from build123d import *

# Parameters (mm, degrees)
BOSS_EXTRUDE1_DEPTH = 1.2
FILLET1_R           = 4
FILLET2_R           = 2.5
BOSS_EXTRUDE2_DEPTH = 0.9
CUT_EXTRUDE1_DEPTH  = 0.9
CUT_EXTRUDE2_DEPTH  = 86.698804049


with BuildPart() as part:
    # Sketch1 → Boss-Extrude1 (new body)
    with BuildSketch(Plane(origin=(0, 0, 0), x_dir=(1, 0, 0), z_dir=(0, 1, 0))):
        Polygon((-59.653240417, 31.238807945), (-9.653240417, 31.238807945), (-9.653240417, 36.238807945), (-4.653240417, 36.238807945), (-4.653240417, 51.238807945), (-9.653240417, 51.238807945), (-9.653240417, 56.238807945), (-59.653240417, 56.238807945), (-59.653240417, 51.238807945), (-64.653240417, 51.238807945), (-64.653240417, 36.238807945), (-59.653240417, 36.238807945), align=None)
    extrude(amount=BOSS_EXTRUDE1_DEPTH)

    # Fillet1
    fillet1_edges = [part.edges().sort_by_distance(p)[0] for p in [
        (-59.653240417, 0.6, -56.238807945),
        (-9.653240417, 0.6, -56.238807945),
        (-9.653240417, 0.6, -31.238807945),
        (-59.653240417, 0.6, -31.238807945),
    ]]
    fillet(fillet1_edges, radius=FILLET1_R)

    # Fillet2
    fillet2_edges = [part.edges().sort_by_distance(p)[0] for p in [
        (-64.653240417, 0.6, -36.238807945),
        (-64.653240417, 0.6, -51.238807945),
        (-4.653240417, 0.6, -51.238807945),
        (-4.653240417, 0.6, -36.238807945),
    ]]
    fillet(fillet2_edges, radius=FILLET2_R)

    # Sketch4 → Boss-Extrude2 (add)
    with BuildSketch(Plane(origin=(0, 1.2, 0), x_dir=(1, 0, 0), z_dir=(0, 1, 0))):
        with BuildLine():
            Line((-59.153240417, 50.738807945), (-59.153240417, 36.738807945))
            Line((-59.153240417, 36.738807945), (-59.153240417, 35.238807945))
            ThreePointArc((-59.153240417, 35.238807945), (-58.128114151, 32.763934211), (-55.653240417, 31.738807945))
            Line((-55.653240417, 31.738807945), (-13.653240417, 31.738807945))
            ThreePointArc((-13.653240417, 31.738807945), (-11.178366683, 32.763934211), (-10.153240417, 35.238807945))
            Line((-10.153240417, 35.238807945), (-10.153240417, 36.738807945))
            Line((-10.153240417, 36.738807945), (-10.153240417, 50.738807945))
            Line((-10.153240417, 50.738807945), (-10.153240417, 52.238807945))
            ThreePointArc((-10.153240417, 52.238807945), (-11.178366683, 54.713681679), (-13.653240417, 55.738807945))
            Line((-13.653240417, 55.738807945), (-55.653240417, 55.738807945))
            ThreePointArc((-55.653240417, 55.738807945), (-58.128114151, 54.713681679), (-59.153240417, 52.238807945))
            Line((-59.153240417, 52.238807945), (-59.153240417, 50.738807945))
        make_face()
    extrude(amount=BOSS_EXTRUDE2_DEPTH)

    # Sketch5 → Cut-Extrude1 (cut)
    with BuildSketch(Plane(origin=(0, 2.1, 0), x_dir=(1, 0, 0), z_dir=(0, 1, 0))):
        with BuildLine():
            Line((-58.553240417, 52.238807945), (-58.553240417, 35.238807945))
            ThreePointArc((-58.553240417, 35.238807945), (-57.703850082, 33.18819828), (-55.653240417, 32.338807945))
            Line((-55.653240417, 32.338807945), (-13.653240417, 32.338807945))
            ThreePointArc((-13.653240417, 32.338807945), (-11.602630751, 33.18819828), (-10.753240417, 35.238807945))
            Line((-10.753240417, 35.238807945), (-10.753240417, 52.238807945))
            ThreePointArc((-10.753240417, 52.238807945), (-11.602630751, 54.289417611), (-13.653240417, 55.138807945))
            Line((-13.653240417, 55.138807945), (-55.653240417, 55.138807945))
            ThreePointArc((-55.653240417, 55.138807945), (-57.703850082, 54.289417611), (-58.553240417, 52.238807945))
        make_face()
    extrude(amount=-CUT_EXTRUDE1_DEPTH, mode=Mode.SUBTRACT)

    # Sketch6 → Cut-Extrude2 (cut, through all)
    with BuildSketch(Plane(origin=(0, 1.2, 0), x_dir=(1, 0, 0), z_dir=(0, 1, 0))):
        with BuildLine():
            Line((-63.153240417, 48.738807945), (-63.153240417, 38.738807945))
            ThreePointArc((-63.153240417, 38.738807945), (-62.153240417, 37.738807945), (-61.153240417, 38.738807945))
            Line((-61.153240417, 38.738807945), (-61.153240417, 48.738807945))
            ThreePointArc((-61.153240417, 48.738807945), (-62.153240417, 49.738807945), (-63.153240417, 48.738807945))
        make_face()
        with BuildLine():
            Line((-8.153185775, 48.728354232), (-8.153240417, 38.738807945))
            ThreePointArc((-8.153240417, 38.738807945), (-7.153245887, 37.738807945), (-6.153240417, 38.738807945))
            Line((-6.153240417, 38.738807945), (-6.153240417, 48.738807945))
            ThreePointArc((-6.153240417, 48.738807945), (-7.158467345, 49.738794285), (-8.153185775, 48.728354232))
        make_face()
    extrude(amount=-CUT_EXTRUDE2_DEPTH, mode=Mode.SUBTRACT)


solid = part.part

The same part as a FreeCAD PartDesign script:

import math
import FreeCAD as App
import Part
import Sketcher

V = App.Vector


def edges_at(feature, points):
    """Names of the edges that pass closest to the given points."""
    edges = feature.Shape.Edges
    near = lambda p: min(range(len(edges)), key=lambda i: edges[i].distToShape(Part.Vertex(*p))[0])
    return sorted({f"Edge{near(p) + 1}" for p in points})


def add_polygon(sketch, points):
    """Adds a closed chain of lines whose ends are joined by coincident constraints."""
    first, n = sketch.GeometryCount, len(points)
    for a, b in zip(points, points[1:] + points[:1]):
        sketch.addGeometry(Part.LineSegment(App.Vector(*a, 0), App.Vector(*b, 0)), False)
    for i in range(n):
        sketch.addConstraint(Sketcher.Constraint("Coincident", first + i, 2, first + (i + 1) % n, 1))

doc = App.newDocument("Part")
body = doc.addObject("PartDesign::Body", "Body")

# Sketch on XZ plane
sketch1 = doc.addObject("Sketcher::SketchObject", "Sketch")
body.addObject(sketch1)
sketch1.AttachmentSupport = (doc.XZ_Plane, [""])
sketch1.MapMode = "FlatFace"
add_polygon(sketch1, [(-59.7, -31.2), (-9.7, -31.2), (-9.7, -36.2), (-4.7, -36.2), (-4.7, -51.2), (-9.7, -51.2), (-9.7, -56.2), (-59.7, -56.2), (-59.7, -51.2), (-64.7, -51.2), (-64.7, -36.2), (-59.7, -36.2)])  # lines 0-11
sketch1.addConstraint(Sketcher.Constraint("Horizontal", 0))
sketch1.addConstraint(Sketcher.Constraint("Vertical", 1))
sketch1.addConstraint(Sketcher.Constraint("Horizontal", 2))
sketch1.addConstraint(Sketcher.Constraint("Vertical", 3))
sketch1.addConstraint(Sketcher.Constraint("Horizontal", 4))
sketch1.addConstraint(Sketcher.Constraint("Vertical", 5))
sketch1.addConstraint(Sketcher.Constraint("Horizontal", 6))
sketch1.addConstraint(Sketcher.Constraint("Vertical", 7))
sketch1.addConstraint(Sketcher.Constraint("Horizontal", 8))
sketch1.addConstraint(Sketcher.Constraint("Vertical", 9))
sketch1.addConstraint(Sketcher.Constraint("Horizontal", 10))
sketch1.addConstraint(Sketcher.Constraint("Vertical", 11))
sketch1.addConstraint(Sketcher.Constraint("Horizontal", 4, 2, 7, 2))
sketch1.addConstraint(Sketcher.Constraint("Horizontal", 2, 2, 9, 2))
sketch1.addConstraint(Sketcher.Constraint("Vertical", 1, 2, 4, 2))
sketch1.addConstraint(Sketcher.Constraint("Vertical", 7, 2, 10, 2))
sketch1.addConstraint(Sketcher.Constraint("Equal", 4, 8))
sketch1.addConstraint(Sketcher.Constraint("Equal", 10, 1))
sketch1.addConstraint(Sketcher.Constraint("Equal", 1, 5))
sketch1.addConstraint(Sketcher.Constraint("DistanceX", 0, 1, 0, 2, 50.0))
sketch1.addConstraint(Sketcher.Constraint("DistanceX", 2, 1, 2, 2, 5.0))
sketch1.addConstraint(Sketcher.Constraint("DistanceY", 3, 2, 3, 1, 15.0))
sketch1.addConstraint(Sketcher.Constraint("DistanceX", 0, 2, -1, 1, 9.65324))
sketch1.addConstraint(Sketcher.Constraint("DistanceY", 0, 2, -1, 1, 31.238808))
pad1 = doc.addObject("PartDesign::Pad", "Pad")
body.addObject(pad1)
pad1.Profile = sketch1
pad1.Length = 1.2
pad1.Reversed = True
doc.recompute()

fillet = doc.addObject("PartDesign::Fillet", "Fillet")
body.addObject(fillet)
fillet.Base = (pad1, edges_at(pad1, [
    (-59.653, 0.6, -56.239),
    (-9.653, 0.6, -56.239),
    (-9.653, 0.6, -31.239),
    (-59.653, 0.6, -31.239),
]))
fillet.Radius = 4
doc.recompute()

fillet2 = doc.addObject("PartDesign::Fillet", "Fillet001")
body.addObject(fillet2)
fillet2.Base = (fillet, edges_at(fillet, [
    (-64.653, 0.6, -36.239),
    (-64.653, 0.6, -51.239),
    (-4.653, 0.6, -51.239),
    (-4.653, 0.6, -36.239),
]))
fillet2.Radius = 2.5

# Sketch on XZ plane
sketch2 = doc.addObject("Sketcher::SketchObject", "Sketch001")
body.addObject(sketch2)
sketch2.AttachmentSupport = (doc.XZ_Plane, [""])
sketch2.MapMode = "FlatFace"
sketch2.AttachmentOffset = App.Placement(V(0, 0, -1.2), App.Rotation())
sketch2.addGeometry(Part.ArcOfCircle(Part.Circle(V(-55.7, -35.2, 0), V(0, 0, 1), 3.5), math.radians(90), math.radians(180)), False)
sketch2.addGeometry(Part.LineSegment(V(-55.7, -31.7, 0), V(-13.7, -31.7, 0)), False)
sketch2.addGeometry(Part.ArcOfCircle(Part.Circle(V(-13.7, -35.2, 0), V(0, 0, 1), 3.5), math.radians(0), math.radians(90)), False)
sketch2.addGeometry(Part.LineSegment(V(-10.2, -35.2, 0), V(-10.2, -52.2, 0)), False)
sketch2.addGeometry(Part.ArcOfCircle(Part.Circle(V(-13.7, -52.2, 0), V(0, 0, 1), 3.5), math.radians(-90), math.radians(0)), False)
sketch2.addGeometry(Part.LineSegment(V(-13.7, -55.7, 0), V(-55.7, -55.7, 0)), False)
sketch2.addGeometry(Part.ArcOfCircle(Part.Circle(V(-55.7, -52.2, 0), V(0, 0, 1), 3.5), math.radians(-180), math.radians(-90)), False)
sketch2.addGeometry(Part.LineSegment(V(-59.2, -52.2, 0), V(-59.2, -35.2, 0)), False)
sketch2.addConstraint(Sketcher.Constraint("Tangent", 0, 1, 1, 1))
sketch2.addConstraint(Sketcher.Constraint("Tangent", 1, 2, 2, 2))
sketch2.addConstraint(Sketcher.Constraint("Tangent", 2, 1, 3, 1))
sketch2.addConstraint(Sketcher.Constraint("Tangent", 3, 2, 4, 2))
sketch2.addConstraint(Sketcher.Constraint("Tangent", 4, 1, 5, 1))
sketch2.addConstraint(Sketcher.Constraint("Tangent", 5, 2, 6, 2))
sketch2.addConstraint(Sketcher.Constraint("Tangent", 6, 1, 7, 1))
sketch2.addConstraint(Sketcher.Constraint("Tangent", 7, 2, 0, 2))
sketch2.addConstraint(Sketcher.Constraint("Horizontal", 1))
sketch2.addConstraint(Sketcher.Constraint("Vertical", 3))
sketch2.addConstraint(Sketcher.Constraint("Horizontal", 5))
sketch2.addConstraint(Sketcher.Constraint("Vertical", 7))
sketch2.addConstraint(Sketcher.Constraint("Equal", 0, 2))
sketch2.addConstraint(Sketcher.Constraint("Equal", 2, 4))
sketch2.addConstraint(Sketcher.Constraint("Equal", 4, 6))
sketch2.addConstraint(Sketcher.Constraint("Radius", 0, 3.5))
sketch2.addConstraint(Sketcher.Constraint("DistanceX", 1, 1, 1, 2, 42.0))
sketch2.addConstraint(Sketcher.Constraint("DistanceY", 3, 2, 3, 1, 17.0))
sketch2.addConstraint(Sketcher.Constraint("DistanceX", 0, 3, -1, 1, 55.65324))
sketch2.addConstraint(Sketcher.Constraint("DistanceY", 0, 3, -1, 1, 35.238808))
pad2 = doc.addObject("PartDesign::Pad", "Pad001")
body.addObject(pad2)
pad2.Profile = sketch2
pad2.Length = 0.9
pad2.Reversed = True

# Sketch on XZ plane
sketch3 = doc.addObject("Sketcher::SketchObject", "Sketch002")
body.addObject(sketch3)
sketch3.AttachmentSupport = (doc.XZ_Plane, [""])
sketch3.MapMode = "FlatFace"
sketch3.AttachmentOffset = App.Placement(V(0, 0, -2.1), App.Rotation())
sketch3.addGeometry(Part.LineSegment(V(-58.6, -52.2, 0), V(-58.6, -35.2, 0)), False)
sketch3.addGeometry(Part.ArcOfCircle(Part.Circle(V(-55.7, -35.2, 0), V(0, 0, 1), 2.9), math.radians(90), math.radians(180)), False)
sketch3.addGeometry(Part.LineSegment(V(-55.7, -32.3, 0), V(-13.7, -32.3, 0)), False)
sketch3.addGeometry(Part.ArcOfCircle(Part.Circle(V(-13.7, -35.2, 0), V(0, 0, 1), 2.9), math.radians(0), math.radians(90)), False)
sketch3.addGeometry(Part.LineSegment(V(-10.8, -35.2, 0), V(-10.8, -52.2, 0)), False)
sketch3.addGeometry(Part.ArcOfCircle(Part.Circle(V(-13.7, -52.2, 0), V(0, 0, 1), 2.9), math.radians(-90), math.radians(0)), False)
sketch3.addGeometry(Part.LineSegment(V(-13.7, -55.1, 0), V(-55.7, -55.1, 0)), False)
sketch3.addGeometry(Part.ArcOfCircle(Part.Circle(V(-55.7, -52.2, 0), V(0, 0, 1), 2.9), math.radians(180), math.radians(270)), False)
sketch3.addConstraint(Sketcher.Constraint("Tangent", 0, 2, 1, 2))
sketch3.addConstraint(Sketcher.Constraint("Tangent", 1, 1, 2, 1))
sketch3.addConstraint(Sketcher.Constraint("Tangent", 2, 2, 3, 2))
sketch3.addConstraint(Sketcher.Constraint("Tangent", 3, 1, 4, 1))
sketch3.addConstraint(Sketcher.Constraint("Tangent", 4, 2, 5, 2))
sketch3.addConstraint(Sketcher.Constraint("Tangent", 5, 1, 6, 1))
sketch3.addConstraint(Sketcher.Constraint("Tangent", 6, 2, 7, 2))
sketch3.addConstraint(Sketcher.Constraint("Tangent", 7, 1, 0, 1))
sketch3.addConstraint(Sketcher.Constraint("Vertical", 0))
sketch3.addConstraint(Sketcher.Constraint("Horizontal", 2))
sketch3.addConstraint(Sketcher.Constraint("Vertical", 4))
sketch3.addConstraint(Sketcher.Constraint("Horizontal", 6))
sketch3.addConstraint(Sketcher.Constraint("Equal", 1, 3))
sketch3.addConstraint(Sketcher.Constraint("Equal", 3, 5))
sketch3.addConstraint(Sketcher.Constraint("Equal", 5, 7))
sketch3.addConstraint(Sketcher.Constraint("Radius", 1, 2.9))
sketch3.addConstraint(Sketcher.Constraint("DistanceX", 2, 1, 2, 2, 42.0))
sketch3.addConstraint(Sketcher.Constraint("DistanceY", 0, 1, 0, 2, 17.0))
sketch3.addConstraint(Sketcher.Constraint("DistanceX", 1, 3, -1, 1, 55.65324))
sketch3.addConstraint(Sketcher.Constraint("DistanceY", 1, 3, -1, 1, 35.238808))
pocket1 = doc.addObject("PartDesign::Pocket", "Pocket")
body.addObject(pocket1)
pocket1.Profile = sketch3
pocket1.Length = 0.9
pocket1.Reversed = True

# Sketch on XZ plane
sketch4 = doc.addObject("Sketcher::SketchObject", "Sketch003")
body.addObject(sketch4)
sketch4.AttachmentSupport = (doc.XZ_Plane, [""])
sketch4.MapMode = "FlatFace"
sketch4.AttachmentOffset = App.Placement(V(0, 0, -1.2), App.Rotation())
sketch4.addGeometry(Part.LineSegment(V(-63.2, -48.7, 0), V(-63.2, -38.7, 0)), False)
sketch4.addGeometry(Part.ArcOfCircle(Part.Circle(V(-62.2, -38.7, 0), V(0, 0, 1), 1), math.radians(0), math.radians(180)), False)
sketch4.addGeometry(Part.LineSegment(V(-61.2, -38.7, 0), V(-61.2, -48.7, 0)), False)
sketch4.addGeometry(Part.ArcOfCircle(Part.Circle(V(-62.2, -48.7, 0), V(0, 0, 1), 1), math.radians(180), math.radians(360)), False)
sketch4.addGeometry(Part.LineSegment(V(-8.2, -48.7, 0), V(-8.2, -38.7, 0)), False)
sketch4.addGeometry(Part.ArcOfCircle(Part.Circle(V(-7.2, -38.7, 0), V(0, 0, 1), 1), math.radians(0), math.radians(180)), False)
sketch4.addGeometry(Part.LineSegment(V(-6.2, -38.7, 0), V(-6.2, -48.7, 0)), False)
sketch4.addGeometry(Part.ArcOfCircle(Part.Circle(V(-7.2, -48.7, 0), V(0, 0, 1), 1), math.radians(179), math.radians(360)), False)
sketch4.addConstraint(Sketcher.Constraint("Tangent", 0, 2, 1, 2))
sketch4.addConstraint(Sketcher.Constraint("Tangent", 1, 1, 2, 1))
sketch4.addConstraint(Sketcher.Constraint("Tangent", 2, 2, 3, 2))
sketch4.addConstraint(Sketcher.Constraint("Tangent", 3, 1, 0, 1))
sketch4.addConstraint(Sketcher.Constraint("Coincident", 4, 2, 5, 2))
sketch4.addConstraint(Sketcher.Constraint("Tangent", 5, 1, 6, 1))
sketch4.addConstraint(Sketcher.Constraint("Tangent", 6, 2, 7, 2))
sketch4.addConstraint(Sketcher.Constraint("Coincident", 7, 1, 4, 1))
sketch4.addConstraint(Sketcher.Constraint("Vertical", 0))
sketch4.addConstraint(Sketcher.Constraint("Vertical", 2))
sketch4.addConstraint(Sketcher.Constraint("Vertical", 6))
sketch4.addConstraint(Sketcher.Constraint("Equal", 3, 5))
sketch4.addConstraint(Sketcher.Constraint("Equal", 5, 7))
sketch4.addConstraint(Sketcher.Constraint("Horizontal", 1, 3, 5, 3))
sketch4.addConstraint(Sketcher.Constraint("Horizontal", 3, 3, 7, 3))
sketch4.addConstraint(Sketcher.Constraint("Horizontal", 1, 1, 4, 2))
sketch4.addConstraint(Sketcher.Constraint("Radius", 1, 1.0))
sketch4.addConstraint(Sketcher.Constraint("DistanceY", 0, 1, 0, 2, 10.0))
sketch4.addConstraint(Sketcher.Constraint("DistanceX", 1, 3, 5, 3, 55.0))
sketch4.addConstraint(Sketcher.Constraint("DistanceX", 1, 3, -1, 1, 62.15324))
sketch4.addConstraint(Sketcher.Constraint("Distance", 4, 9.989546))
sketch4.addConstraint(Sketcher.Constraint("DistanceY", 1, 3, -1, 1, 38.738808))
pocket2 = doc.addObject("PartDesign::Pocket", "Pocket001")
body.addObject(pocket2)
pocket2.Profile = sketch4
pocket2.Type = "ThroughAll"
pocket2.Reversed = True

doc.recompute()
